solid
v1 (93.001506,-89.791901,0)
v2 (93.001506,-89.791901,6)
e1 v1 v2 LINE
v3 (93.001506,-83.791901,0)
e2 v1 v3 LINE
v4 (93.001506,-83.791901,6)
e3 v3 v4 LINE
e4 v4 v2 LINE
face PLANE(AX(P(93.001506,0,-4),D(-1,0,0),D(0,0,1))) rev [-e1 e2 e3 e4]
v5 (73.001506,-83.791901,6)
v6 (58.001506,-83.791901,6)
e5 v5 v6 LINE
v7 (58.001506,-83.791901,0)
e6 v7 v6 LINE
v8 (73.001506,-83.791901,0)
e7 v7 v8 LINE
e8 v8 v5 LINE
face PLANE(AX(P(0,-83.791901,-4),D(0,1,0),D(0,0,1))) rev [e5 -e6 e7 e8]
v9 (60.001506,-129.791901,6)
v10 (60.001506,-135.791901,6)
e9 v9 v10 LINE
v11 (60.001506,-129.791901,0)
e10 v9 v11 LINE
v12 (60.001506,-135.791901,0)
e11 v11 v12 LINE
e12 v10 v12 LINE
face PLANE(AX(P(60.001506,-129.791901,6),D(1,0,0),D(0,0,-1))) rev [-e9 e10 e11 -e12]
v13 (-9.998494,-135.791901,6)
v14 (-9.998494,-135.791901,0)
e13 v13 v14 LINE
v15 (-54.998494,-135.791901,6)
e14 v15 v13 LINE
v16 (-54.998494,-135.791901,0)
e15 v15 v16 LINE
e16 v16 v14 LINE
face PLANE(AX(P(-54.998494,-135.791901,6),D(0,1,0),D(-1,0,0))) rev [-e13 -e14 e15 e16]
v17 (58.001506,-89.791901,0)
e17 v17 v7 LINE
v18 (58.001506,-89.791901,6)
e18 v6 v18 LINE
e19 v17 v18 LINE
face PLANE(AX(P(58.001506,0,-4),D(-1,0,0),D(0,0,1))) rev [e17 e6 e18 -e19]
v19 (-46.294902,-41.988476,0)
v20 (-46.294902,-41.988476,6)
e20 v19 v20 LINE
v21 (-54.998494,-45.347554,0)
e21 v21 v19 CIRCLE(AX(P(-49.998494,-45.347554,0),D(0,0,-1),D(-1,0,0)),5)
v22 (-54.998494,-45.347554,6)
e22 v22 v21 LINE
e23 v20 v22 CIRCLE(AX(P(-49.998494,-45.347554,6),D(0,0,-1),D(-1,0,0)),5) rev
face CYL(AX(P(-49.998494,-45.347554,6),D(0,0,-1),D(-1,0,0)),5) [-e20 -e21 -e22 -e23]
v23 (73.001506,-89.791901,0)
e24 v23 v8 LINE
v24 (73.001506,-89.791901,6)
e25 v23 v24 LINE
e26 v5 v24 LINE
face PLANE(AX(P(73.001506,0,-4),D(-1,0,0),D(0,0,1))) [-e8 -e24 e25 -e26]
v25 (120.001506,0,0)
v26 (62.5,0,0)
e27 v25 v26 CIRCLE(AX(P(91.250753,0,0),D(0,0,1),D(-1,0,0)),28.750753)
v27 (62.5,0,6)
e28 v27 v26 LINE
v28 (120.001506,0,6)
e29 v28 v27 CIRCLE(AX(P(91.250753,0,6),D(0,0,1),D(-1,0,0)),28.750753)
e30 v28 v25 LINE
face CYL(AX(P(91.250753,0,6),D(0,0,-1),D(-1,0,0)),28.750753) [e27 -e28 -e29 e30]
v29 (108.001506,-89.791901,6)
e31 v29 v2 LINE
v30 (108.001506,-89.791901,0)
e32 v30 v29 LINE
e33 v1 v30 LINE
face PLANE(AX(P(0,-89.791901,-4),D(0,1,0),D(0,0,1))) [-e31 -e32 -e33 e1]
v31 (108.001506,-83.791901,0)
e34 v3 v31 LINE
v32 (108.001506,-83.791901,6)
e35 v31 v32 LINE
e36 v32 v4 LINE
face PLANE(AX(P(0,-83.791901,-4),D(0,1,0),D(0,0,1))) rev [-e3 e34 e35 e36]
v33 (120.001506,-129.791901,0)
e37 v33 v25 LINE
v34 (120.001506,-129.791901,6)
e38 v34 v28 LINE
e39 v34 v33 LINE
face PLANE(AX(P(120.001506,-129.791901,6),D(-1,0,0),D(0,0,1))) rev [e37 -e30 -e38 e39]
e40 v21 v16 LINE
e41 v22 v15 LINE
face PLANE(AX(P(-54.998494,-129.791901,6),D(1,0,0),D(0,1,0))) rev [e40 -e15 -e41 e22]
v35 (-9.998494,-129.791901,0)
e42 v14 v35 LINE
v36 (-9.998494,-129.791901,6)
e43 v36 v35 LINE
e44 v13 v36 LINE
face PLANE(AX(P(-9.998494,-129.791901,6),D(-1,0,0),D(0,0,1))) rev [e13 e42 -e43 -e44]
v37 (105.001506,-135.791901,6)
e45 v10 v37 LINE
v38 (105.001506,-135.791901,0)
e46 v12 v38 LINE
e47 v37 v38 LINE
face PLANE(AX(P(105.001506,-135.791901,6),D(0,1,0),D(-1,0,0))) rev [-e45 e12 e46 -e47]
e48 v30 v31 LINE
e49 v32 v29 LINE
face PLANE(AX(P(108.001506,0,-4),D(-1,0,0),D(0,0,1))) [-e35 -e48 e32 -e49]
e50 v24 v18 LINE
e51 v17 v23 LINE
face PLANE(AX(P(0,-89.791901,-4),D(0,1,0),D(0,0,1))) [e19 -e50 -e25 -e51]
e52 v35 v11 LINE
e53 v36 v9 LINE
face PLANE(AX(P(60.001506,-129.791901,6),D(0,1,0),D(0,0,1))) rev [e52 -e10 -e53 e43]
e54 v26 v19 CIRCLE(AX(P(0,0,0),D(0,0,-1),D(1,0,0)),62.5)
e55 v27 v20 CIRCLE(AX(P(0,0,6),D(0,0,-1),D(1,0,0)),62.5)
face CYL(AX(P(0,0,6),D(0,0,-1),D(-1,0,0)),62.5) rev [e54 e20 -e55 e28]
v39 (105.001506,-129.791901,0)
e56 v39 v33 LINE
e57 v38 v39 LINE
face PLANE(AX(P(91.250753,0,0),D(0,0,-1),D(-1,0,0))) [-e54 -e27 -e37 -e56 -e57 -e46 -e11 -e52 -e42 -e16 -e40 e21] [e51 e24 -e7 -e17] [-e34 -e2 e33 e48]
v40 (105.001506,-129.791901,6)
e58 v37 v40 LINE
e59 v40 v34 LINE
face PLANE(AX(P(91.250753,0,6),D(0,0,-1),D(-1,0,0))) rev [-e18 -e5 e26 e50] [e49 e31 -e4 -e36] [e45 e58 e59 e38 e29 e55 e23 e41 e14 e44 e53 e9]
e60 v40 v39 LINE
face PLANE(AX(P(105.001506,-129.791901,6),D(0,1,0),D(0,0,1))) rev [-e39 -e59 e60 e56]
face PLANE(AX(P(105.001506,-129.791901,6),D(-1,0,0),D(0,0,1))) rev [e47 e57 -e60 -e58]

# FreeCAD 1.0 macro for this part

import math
import FreeCAD as App
import Part
import Sketcher
from FreeCAD import Vector


def edges_at(feature, points):
    """Names of the edges that pass closest to the given points."""
    edges = feature.Shape.Edges
    near = lambda p: min(range(len(edges)), key=lambda i: edges[i].distToShape(Part.Vertex(*p))[0])
    return sorted({f"Edge{near(p) + 1}" for p in points})

doc = App.newDocument("Part")
params = doc.addObject("Spreadsheet::Sheet", "Params")
for row, (alias, value) in enumerate([
    ("sketch1_radius", "62.5 mm"),
    ("sketch1_width", "15 mm"),
    ("sketch1_width2", "45 mm"),
    ("sketch1_width3", "70 mm"),
    ("sketch1_height", "6 mm"),
    ("pad1_length", "6 mm"),
    ("sketch2_width", "15 mm"),
    ("sketch2_height", "6 mm"),
    ("pocket1_length", "10 mm"),
    ("fillet_radius", "5 mm"),
], start=1):
    params.set(f"A{row}", alias)
    params.set(f"B{row}", "=" + value)
    params.setAlias(f"B{row}", alias)

body = doc.addObject("PartDesign::Body", "Body")

sketch1 = body.newObject("Sketcher::SketchObject", "Sketch")
sketch1.AttachmentSupport = (doc.getObject("XY_Plane"), [""])
sketch1.MapMode = "FlatFace"
sketch1.addGeometry(Part.LineSegment(Vector(105, -130, 0), Vector(120, -130, 0)), False)
sketch1.addGeometry(Part.LineSegment(Vector(120, -130, 0), Vector(120, 0, 0)), False)
sketch1.addGeometry(Part.ArcOfCircle(Part.Circle(Vector(91, 0, 0), Vector(0, 0, 1), 29), math.radians(0), math.radians(180)), False)
sketch1.addGeometry(Part.ArcOfCircle(Part.Circle(Vector(0, 0, 0), Vector(0, 0, 1), 62), math.radians(-152), math.radians(0)), False)
sketch1.addGeometry(Part.LineSegment(Vector(-55, -30, 0), Vector(-55, -136, 0)), False)
sketch1.addGeometry(Part.LineSegment(Vector(-55, -136, 0), Vector(-10, -136, 0)), False)
sketch1.addGeometry(Part.LineSegment(Vector(-10, -136, 0), Vector(-10, -130, 0)), False)
sketch1.addGeometry(Part.LineSegment(Vector(-10, -130, 0), Vector(60, -130, 0)), False)
sketch1.addGeometry(Part.LineSegment(Vector(60, -130, 0), Vector(60, -136, 0)), False)
sketch1.addGeometry(Part.LineSegment(Vector(60, -136, 0), Vector(105, -136, 0)), False)
sketch1.addGeometry(Part.LineSegment(Vector(105, -136, 0), Vector(105, -130, 0)), False)
sketch1.addConstraint(Sketcher.Constraint("Coincident", 0, 2, 1, 1))
sketch1.addConstraint(Sketcher.Constraint("Tangent", 1, 2, 2, 1))
sketch1.addConstraint(Sketcher.Constraint("Tangent", 2, 2, 3, 2))
sketch1.addConstraint(Sketcher.Constraint("Coincident", 3, 1, 4, 1))
sketch1.addConstraint(Sketcher.Constraint("Coincident", 4, 2, 5, 1))
sketch1.addConstraint(Sketcher.Constraint("Coincident", 5, 2, 6, 1))
sketch1.addConstraint(Sketcher.Constraint("Coincident", 6, 2, 7, 1))
sketch1.addConstraint(Sketcher.Constraint("Coincident", 7, 2, 8, 1))
sketch1.addConstraint(Sketcher.Constraint("Coincident", 8, 2, 9, 1))
sketch1.addConstraint(Sketcher.Constraint("Coincident", 9, 2, 10, 1))
sketch1.addConstraint(Sketcher.Constraint("Coincident", 10, 2, 0, 1))
sketch1.addConstraint(Sketcher.Constraint("Horizontal", 0))
sketch1.addConstraint(Sketcher.Constraint("Vertical", 1))
sketch1.addConstraint(Sketcher.Constraint("Vertical", 4))
sketch1.addConstraint(Sketcher.Constraint("Horizontal", 5))
sketch1.addConstraint(Sketcher.Constraint("Vertical", 6))
sketch1.addConstraint(Sketcher.Constraint("Horizontal", 7))
sketch1.addConstraint(Sketcher.Constraint("Vertical", 8))
sketch1.addConstraint(Sketcher.Constraint("Horizontal", 9))
sketch1.addConstraint(Sketcher.Constraint("Vertical", 10))
sketch1.addConstraint(Sketcher.Constraint("Coincident", 3, 3, -1, 1))
sketch1.addConstraint(Sketcher.Constraint("PointOnObject", 2, 3, -1))
sketch1.addConstraint(Sketcher.Constraint("Horizontal", 0, 2, 6, 2))
sketch1.addConstraint(Sketcher.Constraint("Horizontal", 5, 2, 8, 2))
sketch1.addConstraint(Sketcher.Constraint("Equal", 5, 9))
sketch1.addConstraint(Sketcher.Constraint("Radius", 3, 62.5))
sketch1.addConstraint(Sketcher.Constraint("DistanceX", 0, 1, 0, 2, 15.0))
sketch1.addConstraint(Sketcher.Constraint("DistanceX", 5, 1, 5, 2, 45.0))
sketch1.addConstraint(Sketcher.Constraint("DistanceX", 7, 1, 7, 2, 70.0))
sketch1.addConstraint(Sketcher.Constraint("DistanceY", 6, 1, 6, 2, 6.0))
sketch1.addConstraint(Sketcher.Constraint("DistanceY", 1, 1, 1, 2, 129.791901))
sketch1.addConstraint(Sketcher.Constraint("Radius", 2, 28.750753))
sketch1.setExpression("Constraints[25]", "Params.sketch1_radius")
sketch1.setExpression("Constraints[26]", "Params.sketch1_width")
sketch1.setExpression("Constraints[27]", "Params.sketch1_width2")
sketch1.setExpression("Constraints[28]", "Params.sketch1_width3")
sketch1.setExpression("Constraints[29]", "Params.sketch1_height")
pad1 = body.newObject("PartDesign::Pad", "Pad")
pad1.Profile = sketch1
pad1.setExpression("Length", "Params.pad1_length")

sketch2 = body.newObject("Sketcher::SketchObject", "Sketch001")
sketch2.AttachmentSupport = (doc.getObject("XY_Plane"), [""])
sketch2.MapMode = "FlatFace"
sketch2.AttachmentOffset = App.Placement(Vector(0, 0, 6), App.Rotation())
sketch2.addGeometry(Part.LineSegment(Vector(58, -84, 0), Vector(58, -90, 0)), False)
sketch2.addGeometry(Part.LineSegment(Vector(58, -90, 0), Vector(73, -90, 0)), False)
sketch2.addGeometry(Part.LineSegment(Vector(73, -90, 0), Vector(73, -84, 0)), False)
sketch2.addGeometry(Part.LineSegment(Vector(73, -84, 0), Vector(58, -84, 0)), False)
sketch2.addGeometry(Part.LineSegment(Vector(93, -84, 0), Vector(93, -90, 0)), False)
sketch2.addGeometry(Part.LineSegment(Vector(93, -90, 0), Vector(108, -90, 0)), False)
sketch2.addGeometry(Part.LineSegment(Vector(108, -90, 0), Vector(108, -84, 0)), False)
sketch2.addGeometry(Part.LineSegment(Vector(108, -84, 0), Vector(93, -84, 0)), False)
sketch2.addConstraint(Sketcher.Constraint("Coincident", 0, 2, 1, 1))
sketch2.addConstraint(Sketcher.Constraint("Coincident", 1, 2, 2, 1))
sketch2.addConstraint(Sketcher.Constraint("Coincident", 2, 2, 3, 1))
sketch2.addConstraint(Sketcher.Constraint("Coincident", 3, 2, 0, 1))
sketch2.addConstraint(Sketcher.Constraint("Coincident", 4, 2, 5, 1))
sketch2.addConstraint(Sketcher.Constraint("Coincident", 5, 2, 6, 1))
sketch2.addConstraint(Sketcher.Constraint("Coincident", 6, 2, 7, 1))
sketch2.addConstraint(Sketcher.Constraint("Coincident", 7, 2, 4, 1))
sketch2.addConstraint(Sketcher.Constraint("Vertical", 0))
sketch2.addConstraint(Sketcher.Constraint("Horizontal", 1))
sketch2.addConstraint(Sketcher.Constraint("Vertical", 2))
sketch2.addConstraint(Sketcher.Constraint("Horizontal", 3))
sketch2.addConstraint(Sketcher.Constraint("Vertical", 4))
sketch2.addConstraint(Sketcher.Constraint("Horizontal", 5))
sketch2.addConstraint(Sketcher.Constraint("Vertical", 6))
sketch2.addConstraint(Sketcher.Constraint("Horizontal", 7))
sketch2.addConstraint(Sketcher.Constraint("Horizontal", 1, 2, 4, 2))
sketch2.addConstraint(Sketcher.Constraint("Horizontal", 3, 2, 6, 2))
sketch2.addConstraint(Sketcher.Constraint("Equal", 3, 5))
sketch2.addConstraint(Sketcher.Constraint("DistanceX", 1, 1, 1, 2, 15.0))
sketch2.addConstraint(Sketcher.Constraint("DistanceY", 0, 2, 0, 1, 6.0))
sketch2.addConstraint(Sketcher.Constraint("DistanceX", 1, 2, 4, 2, 20.0))
sketch2.addConstraint(Sketcher.Constraint("DistanceY", 0, 2, -1, 1, 89.791901))
sketch2.addConstraint(Sketcher.Constraint("DistanceX", -1, 1, 0, 2, 58.001506))
sketch2.setExpression("Constraints[19]", "Params.sketch2_width")
sketch2.setExpression("Constraints[20]", "Params.sketch2_height")
pocket1 = body.newObject("PartDesign::Pocket", "Pocket")
pocket1.Profile = sketch2
pocket1.setExpression("Length", "Params.pocket1_length")
doc.recompute()

fillet = body.newObject("PartDesign::Fillet", "Fillet")
fillet.Base = (pocket1, edges_at(pocket1, [(-54.998, -29.689, 3)]))
fillet.setExpression("Radius", "Params.fillet_radius")

doc.recompute()
